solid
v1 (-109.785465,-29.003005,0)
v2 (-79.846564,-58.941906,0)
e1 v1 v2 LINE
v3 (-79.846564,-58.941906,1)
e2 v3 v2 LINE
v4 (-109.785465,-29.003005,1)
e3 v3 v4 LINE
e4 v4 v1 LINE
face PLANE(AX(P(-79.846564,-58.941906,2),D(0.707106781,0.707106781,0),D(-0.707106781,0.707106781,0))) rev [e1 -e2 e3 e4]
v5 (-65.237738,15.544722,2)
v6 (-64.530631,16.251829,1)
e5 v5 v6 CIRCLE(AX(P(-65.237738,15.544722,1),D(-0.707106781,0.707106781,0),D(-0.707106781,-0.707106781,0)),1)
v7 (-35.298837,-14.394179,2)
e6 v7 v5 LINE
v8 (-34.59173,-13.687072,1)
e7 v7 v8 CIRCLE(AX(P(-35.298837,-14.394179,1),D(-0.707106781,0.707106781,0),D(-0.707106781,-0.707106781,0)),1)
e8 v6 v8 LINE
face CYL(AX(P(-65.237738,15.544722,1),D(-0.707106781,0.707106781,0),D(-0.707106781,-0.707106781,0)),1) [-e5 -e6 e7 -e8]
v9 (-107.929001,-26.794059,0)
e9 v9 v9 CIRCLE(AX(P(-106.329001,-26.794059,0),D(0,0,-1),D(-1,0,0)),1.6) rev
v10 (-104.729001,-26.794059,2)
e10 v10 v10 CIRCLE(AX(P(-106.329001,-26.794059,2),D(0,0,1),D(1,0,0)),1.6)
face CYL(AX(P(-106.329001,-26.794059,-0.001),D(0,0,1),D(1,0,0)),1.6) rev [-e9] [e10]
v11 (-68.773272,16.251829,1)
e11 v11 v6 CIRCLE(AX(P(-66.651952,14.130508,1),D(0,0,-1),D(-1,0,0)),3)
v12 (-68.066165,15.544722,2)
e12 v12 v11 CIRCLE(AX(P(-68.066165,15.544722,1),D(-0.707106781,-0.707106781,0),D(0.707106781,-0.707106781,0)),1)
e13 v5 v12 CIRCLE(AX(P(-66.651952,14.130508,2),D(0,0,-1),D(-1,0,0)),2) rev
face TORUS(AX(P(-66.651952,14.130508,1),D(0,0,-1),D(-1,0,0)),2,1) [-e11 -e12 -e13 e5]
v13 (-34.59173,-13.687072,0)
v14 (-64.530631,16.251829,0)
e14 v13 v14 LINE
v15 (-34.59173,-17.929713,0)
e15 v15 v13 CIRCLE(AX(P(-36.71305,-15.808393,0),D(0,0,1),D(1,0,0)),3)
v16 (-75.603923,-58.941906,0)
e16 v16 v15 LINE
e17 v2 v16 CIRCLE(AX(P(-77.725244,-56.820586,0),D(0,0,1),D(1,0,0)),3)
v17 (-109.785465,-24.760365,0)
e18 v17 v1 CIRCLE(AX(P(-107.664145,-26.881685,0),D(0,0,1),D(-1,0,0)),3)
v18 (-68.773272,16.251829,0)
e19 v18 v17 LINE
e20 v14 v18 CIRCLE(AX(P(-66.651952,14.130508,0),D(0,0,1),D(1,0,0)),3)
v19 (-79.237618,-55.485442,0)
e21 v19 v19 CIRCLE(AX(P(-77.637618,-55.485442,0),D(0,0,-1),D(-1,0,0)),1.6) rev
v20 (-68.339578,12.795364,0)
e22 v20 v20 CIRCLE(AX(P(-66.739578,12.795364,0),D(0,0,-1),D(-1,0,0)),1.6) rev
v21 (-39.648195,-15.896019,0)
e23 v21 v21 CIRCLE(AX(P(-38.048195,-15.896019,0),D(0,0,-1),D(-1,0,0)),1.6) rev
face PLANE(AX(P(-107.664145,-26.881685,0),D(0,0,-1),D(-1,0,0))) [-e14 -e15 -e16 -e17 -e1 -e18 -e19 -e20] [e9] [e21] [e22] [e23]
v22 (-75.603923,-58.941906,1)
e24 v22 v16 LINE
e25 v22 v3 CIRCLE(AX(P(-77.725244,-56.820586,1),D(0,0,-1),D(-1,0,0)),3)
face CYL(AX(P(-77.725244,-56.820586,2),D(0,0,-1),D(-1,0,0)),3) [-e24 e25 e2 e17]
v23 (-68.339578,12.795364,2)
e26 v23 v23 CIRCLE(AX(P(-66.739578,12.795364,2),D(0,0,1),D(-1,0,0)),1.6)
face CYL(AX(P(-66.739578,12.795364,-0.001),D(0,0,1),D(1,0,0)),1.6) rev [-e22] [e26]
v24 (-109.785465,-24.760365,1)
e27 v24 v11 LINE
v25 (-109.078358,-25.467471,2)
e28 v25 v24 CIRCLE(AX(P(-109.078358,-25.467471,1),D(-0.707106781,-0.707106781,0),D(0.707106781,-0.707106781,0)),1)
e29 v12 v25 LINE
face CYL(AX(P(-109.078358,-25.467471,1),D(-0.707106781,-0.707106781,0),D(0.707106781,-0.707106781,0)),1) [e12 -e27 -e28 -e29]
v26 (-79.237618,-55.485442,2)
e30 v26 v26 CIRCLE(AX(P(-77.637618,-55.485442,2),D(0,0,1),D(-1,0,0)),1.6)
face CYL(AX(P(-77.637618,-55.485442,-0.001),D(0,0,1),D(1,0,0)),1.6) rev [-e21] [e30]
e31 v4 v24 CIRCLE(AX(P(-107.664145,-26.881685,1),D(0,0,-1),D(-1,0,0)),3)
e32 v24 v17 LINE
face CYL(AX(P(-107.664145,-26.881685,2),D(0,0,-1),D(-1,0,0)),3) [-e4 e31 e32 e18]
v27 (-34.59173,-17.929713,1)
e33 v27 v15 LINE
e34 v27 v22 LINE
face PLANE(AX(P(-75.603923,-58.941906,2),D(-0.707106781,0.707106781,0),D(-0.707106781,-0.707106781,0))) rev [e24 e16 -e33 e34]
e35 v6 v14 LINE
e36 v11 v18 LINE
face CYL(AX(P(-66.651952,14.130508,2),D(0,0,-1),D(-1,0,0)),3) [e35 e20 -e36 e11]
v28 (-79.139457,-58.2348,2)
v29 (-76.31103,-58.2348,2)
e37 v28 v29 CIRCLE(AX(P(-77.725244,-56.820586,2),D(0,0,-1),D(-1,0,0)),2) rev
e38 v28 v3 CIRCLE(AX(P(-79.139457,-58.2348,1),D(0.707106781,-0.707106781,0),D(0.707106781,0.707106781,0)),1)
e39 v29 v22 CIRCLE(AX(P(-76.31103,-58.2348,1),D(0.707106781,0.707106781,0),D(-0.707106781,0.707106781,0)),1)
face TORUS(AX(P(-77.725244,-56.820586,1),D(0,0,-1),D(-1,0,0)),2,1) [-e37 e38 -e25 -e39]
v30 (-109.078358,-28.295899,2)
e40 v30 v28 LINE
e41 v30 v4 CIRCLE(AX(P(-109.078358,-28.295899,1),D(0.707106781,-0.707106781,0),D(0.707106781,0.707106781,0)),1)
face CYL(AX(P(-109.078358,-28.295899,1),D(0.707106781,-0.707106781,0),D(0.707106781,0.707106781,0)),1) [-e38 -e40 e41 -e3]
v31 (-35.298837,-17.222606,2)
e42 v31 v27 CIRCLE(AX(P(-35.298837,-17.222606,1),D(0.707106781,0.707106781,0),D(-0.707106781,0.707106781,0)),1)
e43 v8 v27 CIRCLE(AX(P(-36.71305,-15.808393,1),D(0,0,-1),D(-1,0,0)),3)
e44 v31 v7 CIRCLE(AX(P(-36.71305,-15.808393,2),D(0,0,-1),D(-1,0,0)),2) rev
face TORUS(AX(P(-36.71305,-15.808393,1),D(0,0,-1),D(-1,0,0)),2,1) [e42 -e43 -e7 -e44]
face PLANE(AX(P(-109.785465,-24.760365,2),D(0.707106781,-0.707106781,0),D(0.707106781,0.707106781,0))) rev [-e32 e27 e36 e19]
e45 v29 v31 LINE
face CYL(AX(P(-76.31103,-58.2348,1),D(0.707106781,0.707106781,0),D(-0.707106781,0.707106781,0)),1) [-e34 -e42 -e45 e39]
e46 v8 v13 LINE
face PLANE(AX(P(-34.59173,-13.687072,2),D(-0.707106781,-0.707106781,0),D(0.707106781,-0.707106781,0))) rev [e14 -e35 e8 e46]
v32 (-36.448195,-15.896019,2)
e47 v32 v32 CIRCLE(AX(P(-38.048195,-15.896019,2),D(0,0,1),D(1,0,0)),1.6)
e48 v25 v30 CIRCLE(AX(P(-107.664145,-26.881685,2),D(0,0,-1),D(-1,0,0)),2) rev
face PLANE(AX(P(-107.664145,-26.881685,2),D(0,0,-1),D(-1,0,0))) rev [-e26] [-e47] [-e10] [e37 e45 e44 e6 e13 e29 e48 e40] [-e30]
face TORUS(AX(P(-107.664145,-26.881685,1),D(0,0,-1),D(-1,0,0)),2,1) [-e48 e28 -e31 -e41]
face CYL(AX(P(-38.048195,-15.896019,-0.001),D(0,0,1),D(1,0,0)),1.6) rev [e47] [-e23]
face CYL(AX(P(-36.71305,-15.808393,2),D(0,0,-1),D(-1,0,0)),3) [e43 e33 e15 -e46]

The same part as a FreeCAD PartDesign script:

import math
import FreeCAD as App
import Part
import Sketcher


def edges_at(feature, points):
    """Names of the edges that pass closest to the given points."""
    edges = feature.Shape.Edges
    near = lambda p: min(range(len(edges)), key=lambda i: edges[i].distToShape(Part.Vertex(*p))[0])
    return sorted({f"Edge{near(p) + 1}" for p in points})

doc = App.newDocument("Part")
body = doc.addObject("PartDesign::Body", "Body")

# Sketch on XY plane
sketch1 = doc.addObject("Sketcher::SketchObject", "Sketch")
body.addObject(sketch1)
sketch1.AttachmentSupport = (doc.XY_Plane, [""])
sketch1.MapMode = "FlatFace"
sketch1.addGeometry(Part.LineSegment(App.Vector(-75.603923, -58.941906, 0), App.Vector(-34.59173, -17.929713, 0)), False)
sketch1.addGeometry(Part.ArcOfCircle(Part.Circle(App.Vector(-36.71305, -15.808393, 0), App.Vector(0, 0, 1), 3), math.radians(-45), math.radians(45)), False)
sketch1.addGeometry(Part.LineSegment(App.Vector(-34.59173, -13.687072, 0), App.Vector(-64.530631, 16.251829, 0)), False)
sketch1.addGeometry(Part.ArcOfCircle(Part.Circle(App.Vector(-66.651952, 14.130508, 0), App.Vector(0, 0, 1), 3), math.radians(45), math.radians(135)), False)
sketch1.addGeometry(Part.LineSegment(App.Vector(-68.773272, 16.251829, 0), App.Vector(-109.785465, -24.760365, 0)), False)
sketch1.addGeometry(Part.ArcOfCircle(Part.Circle(App.Vector(-107.664145, -26.881685, 0), App.Vector(0, 0, 1), 3), math.radians(135), math.radians(225)), False)
sketch1.addGeometry(Part.LineSegment(App.Vector(-109.785465, -29.003005, 0), App.Vector(-79.846564, -58.941906, 0)), False)
sketch1.addGeometry(Part.ArcOfCircle(Part.Circle(App.Vector(-77.725244, -56.820586, 0), App.Vector(0, 0, 1), 3), math.radians(-135), math.radians(-45)), False)
sketch1.addConstraint(Sketcher.Constraint("Tangent", 0, 2, 1, 1))
sketch1.addConstraint(Sketcher.Constraint("Tangent", 1, 2, 2, 1))
sketch1.addConstraint(Sketcher.Constraint("Tangent", 2, 2, 3, 1))
sketch1.addConstraint(Sketcher.Constraint("Tangent", 3, 2, 4, 1))
sketch1.addConstraint(Sketcher.Constraint("Tangent", 4, 2, 5, 1))
sketch1.addConstraint(Sketcher.Constraint("Tangent", 5, 2, 6, 1))
sketch1.addConstraint(Sketcher.Constraint("Tangent", 6, 2, 7, 1))
sketch1.addConstraint(Sketcher.Constraint("Tangent", 7, 2, 0, 1))
sketch1.addConstraint(Sketcher.Constraint("Equal", 1, 3))
sketch1.addConstraint(Sketcher.Constraint("Equal", 3, 5))
sketch1.addConstraint(Sketcher.Constraint("Equal", 5, 7))
sketch1.addConstraint(Sketcher.Constraint("Perpendicular", 0, 2))
sketch1.addConstraint(Sketcher.Constraint("Perpendicular", 2, 4))
sketch1.addConstraint(Sketcher.Constraint("Perpendicular", 4, 6))
sketch1.addConstraint(Sketcher.Constraint("Horizontal", 2, 2, 3, 2))
sketch1.addConstraint(Sketcher.Constraint("Radius", 1, 3.0))
sketch1.addConstraint(Sketcher.Constraint("Distance", 0, 58.0))
sketch1.addConstraint(Sketcher.Constraint("Distance", 2, 42.34))
sketch1.addConstraint(Sketcher.Constraint("DistanceX", 1, 3, -1, 1, 36.71305))
sketch1.addConstraint(Sketcher.Constraint("DistanceY", -1, 1, 3, 3, 14.130508))
pad1 = doc.addObject("PartDesign::Pad", "Pad")
body.addObject(pad1)
pad1.Profile = sketch1
pad1.Length = 2

# Sketch on XY plane
sketch2 = doc.addObject("Sketcher::SketchObject", "Sketch001")
body.addObject(sketch2)
sketch2.AttachmentSupport = (doc.XY_Plane, [""])
sketch2.MapMode = "FlatFace"
sketch2.AttachmentOffset = App.Placement(App.Vector(0, 0, 2), App.Rotation())
sketch2.addGeometry(Part.Circle(App.Vector(-106.329001, -26.794059, 0), App.Vector(0, 0, 1), 1.6), False)
sketch2.addConstraint(Sketcher.Constraint("Diameter", 0, 3.2))
sketch2.addConstraint(Sketcher.Constraint("DistanceX", 0, 3, -1, 1, 106.329001))
sketch2.addConstraint(Sketcher.Constraint("DistanceY", 0, 3, -1, 1, 26.794059))
pocket1 = doc.addObject("PartDesign::Pocket", "Pocket")
body.addObject(pocket1)
pocket1.Profile = sketch2
pocket1.Type = "UpToFirst"

# Sketch on XY plane
sketch3 = doc.addObject("Sketcher::SketchObject", "Sketch002")
body.addObject(sketch3)
sketch3.AttachmentSupport = (doc.XY_Plane, [""])
sketch3.MapMode = "FlatFace"
sketch3.AttachmentOffset = App.Placement(App.Vector(0, 0, 2), App.Rotation())
sketch3.addGeometry(Part.Circle(App.Vector(-77.637618, -55.485442, 0), App.Vector(0, 0, 1), 1.6), False)
sketch3.addConstraint(Sketcher.Constraint("Diameter", 0, 3.2))
sketch3.addConstraint(Sketcher.Constraint("DistanceY", 0, 3, -1, 1, 55.485442))
sketch3.addConstraint(Sketcher.Constraint("DistanceX", 0, 3, -1, 1, 77.637618))
pocket2 = doc.addObject("PartDesign::Pocket", "Pocket001")
body.addObject(pocket2)
pocket2.Profile = sketch3
pocket2.Type = "UpToFirst"

# Sketch on XY plane
sketch4 = doc.addObject("Sketcher::SketchObject", "Sketch003")
body.addObject(sketch4)
sketch4.AttachmentSupport = (doc.XY_Plane, [""])
sketch4.MapMode = "FlatFace"
sketch4.AttachmentOffset = App.Placement(App.Vector(0, 0, 2), App.Rotation())
sketch4.addGeometry(Part.Circle(App.Vector(-38.048195, -15.896019, 0), App.Vector(0, 0, 1), 1.6), False)
sketch4.addConstraint(Sketcher.Constraint("Diameter", 0, 3.2))
sketch4.addConstraint(Sketcher.Constraint("DistanceY", 0, 3, -1, 1, 15.896019))
sketch4.addConstraint(Sketcher.Constraint("DistanceX", 0, 3, -1, 1, 38.048195))
pocket3 = doc.addObject("PartDesign::Pocket", "Pocket002")
body.addObject(pocket3)
pocket3.Profile = sketch4
pocket3.Type = "UpToFirst"

# Sketch on XY plane
sketch5 = doc.addObject("Sketcher::SketchObject", "Sketch004")
body.addObject(sketch5)
sketch5.AttachmentSupport = (doc.XY_Plane, [""])
sketch5.MapMode = "FlatFace"
sketch5.AttachmentOffset = App.Placement(App.Vector(0, 0, 2), App.Rotation())
sketch5.addGeometry(Part.Circle(App.Vector(-66.739578, 12.795364, 0), App.Vector(0, 0, 1), 1.6), False)
sketch5.addConstraint(Sketcher.Constraint("Diameter", 0, 3.2))
sketch5.addConstraint(Sketcher.Constraint("DistanceX", 0, 3, -1, 1, 66.739578))
sketch5.addConstraint(Sketcher.Constraint("DistanceY", -1, 1, 0, 3, 12.795364))
pocket4 = doc.addObject("PartDesign::Pocket", "Pocket003")
body.addObject(pocket4)
pocket4.Profile = sketch5
pocket4.Type = "UpToFirst"
doc.recompute()

fillet = doc.addObject("PartDesign::Fillet", "Fillet")
body.addObject(fillet)
fillet.Base = (pocket4, edges_at(pocket4, [
    (-77.725, -59.821, 2),
    (-55.098, -38.436, 2),
    (-33.713, -15.808, 2),
    (-49.561, 1.282, 2),
    (-66.652, 17.131, 2),
    (-89.279, -4.254, 2),
    (-110.664, -26.882, 2),
    (-94.816, -43.972, 2),
]))
fillet.Radius = 1

doc.recompute()
